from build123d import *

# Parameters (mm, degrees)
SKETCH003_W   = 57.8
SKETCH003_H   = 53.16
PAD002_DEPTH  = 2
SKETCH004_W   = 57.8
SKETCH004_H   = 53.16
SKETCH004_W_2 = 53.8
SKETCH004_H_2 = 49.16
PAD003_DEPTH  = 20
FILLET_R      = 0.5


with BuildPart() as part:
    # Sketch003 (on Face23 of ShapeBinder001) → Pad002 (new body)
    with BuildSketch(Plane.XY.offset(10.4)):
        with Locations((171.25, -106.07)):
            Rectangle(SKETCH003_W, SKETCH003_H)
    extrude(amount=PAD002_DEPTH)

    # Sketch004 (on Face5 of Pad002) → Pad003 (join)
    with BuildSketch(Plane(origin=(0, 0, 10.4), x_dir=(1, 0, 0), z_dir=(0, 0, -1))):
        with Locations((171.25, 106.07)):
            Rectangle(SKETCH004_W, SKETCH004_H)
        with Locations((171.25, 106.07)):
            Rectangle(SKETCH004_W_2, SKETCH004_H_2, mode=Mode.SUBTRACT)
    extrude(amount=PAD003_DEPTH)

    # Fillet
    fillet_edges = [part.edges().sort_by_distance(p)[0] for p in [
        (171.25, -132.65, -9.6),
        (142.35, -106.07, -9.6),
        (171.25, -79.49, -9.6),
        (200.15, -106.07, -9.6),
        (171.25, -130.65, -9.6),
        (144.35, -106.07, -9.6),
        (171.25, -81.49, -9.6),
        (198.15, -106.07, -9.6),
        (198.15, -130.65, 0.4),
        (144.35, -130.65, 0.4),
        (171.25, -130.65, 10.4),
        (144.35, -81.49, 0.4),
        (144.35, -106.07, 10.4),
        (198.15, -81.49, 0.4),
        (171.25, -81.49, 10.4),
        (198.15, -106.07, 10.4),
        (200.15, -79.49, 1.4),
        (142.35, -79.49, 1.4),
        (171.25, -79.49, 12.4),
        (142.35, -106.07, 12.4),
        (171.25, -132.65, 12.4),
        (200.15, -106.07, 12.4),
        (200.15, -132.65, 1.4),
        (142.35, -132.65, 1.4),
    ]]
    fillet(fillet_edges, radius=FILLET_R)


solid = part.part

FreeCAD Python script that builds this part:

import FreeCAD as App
import Part
import Sketcher


def add_polygon(sketch, points):
    """Adds a closed chain of lines whose ends are joined by coincident constraints."""
    first, n = sketch.GeometryCount, len(points)
    for a, b in zip(points, points[1:] + points[:1]):
        sketch.addGeometry(Part.LineSegment(App.Vector(*a, 0), App.Vector(*b, 0)), False)
    for i in range(n):
        sketch.addConstraint(Sketcher.Constraint("Coincident", first + i, 2, first + (i + 1) % n, 1))

doc = App.newDocument("Part")
params = doc.addObject("Spreadsheet::Sheet", "Params")
for row, (alias, value) in enumerate([
    ("sketch1_width", "57.8 mm"),
    ("sketch1_height", "53.16 mm"),
    ("pad1_length", "2 mm"),
    ("sketch2_width", "57.8 mm"),
    ("sketch2_width2", "53.8 mm"),
    ("sketch2_height", "53.16 mm"),
    ("pad2_length", "20 mm"),
    ("fillet_radius", "0.5 mm"),
], start=1):
    params.set(f"A{row}", alias)
    params.set(f"B{row}", "=" + value)
    params.setAlias(f"B{row}", alias)

body = doc.addObject("PartDesign::Body", "Body")

# Sketch on XY plane
sketch1 = body.newObject("Sketcher::SketchObject", "Sketch")
sketch1.AttachmentSupport = (doc.getObject("XY_Plane"), [""])
sketch1.MapMode = "FlatFace"
sketch1.AttachmentOffset = App.Placement(App.Vector(0, 0, 10.4), App.Rotation())
add_polygon(sketch1, [(142, -79), (142, -133), (200, -133), (200, -79)])  # lines 0-3
sketch1.addConstraint(Sketcher.Constraint("Vertical", 0))
sketch1.addConstraint(Sketcher.Constraint("Horizontal", 1))
sketch1.addConstraint(Sketcher.Constraint("Vertical", 2))
sketch1.addConstraint(Sketcher.Constraint("Horizontal", 3))
sketch1.addConstraint(Sketcher.Constraint("DistanceX", 1, 1, 1, 2, 57.8))
sketch1.addConstraint(Sketcher.Constraint("DistanceY", 0, 2, 0, 1, 53.16))
sketch1.addConstraint(Sketcher.Constraint("DistanceX", -1, 1, 0, 2, 142.35))
sketch1.addConstraint(Sketcher.Constraint("DistanceY", 0, 2, -1, 1, 132.65))
sketch1.setExpression("Constraints[8]", "Params.sketch1_width")
sketch1.setExpression("Constraints[9]", "Params.sketch1_height")
pad1 = body.newObject("PartDesign::Pad", "Pad")
pad1.Profile = sketch1
pad1.setExpression("Length", "Params.pad1_length")

# Sketch on XY plane
sketch2 = body.newObject("Sketcher::SketchObject", "Sketch001")
sketch2.AttachmentSupport = (doc.getObject("XY_Plane"), [""])
sketch2.MapMode = "FlatFace"
sketch2.AttachmentOffset = App.Placement(App.Vector(0, 0, 10.4), App.Rotation())
add_polygon(sketch2, [(142, -133), (142, -79), (200, -79), (200, -133)])  # lines 0-3
add_polygon(sketch2, [(198, -81), (144, -81), (144, -131), (198, -131)])  # lines 4-7
sketch2.addConstraint(Sketcher.Constraint("Vertical", 0))
sketch2.addConstraint(Sketcher.Constraint("Horizontal", 1))
sketch2.addConstraint(Sketcher.Constraint("Vertical", 2))
sketch2.addConstraint(Sketcher.Constraint("Horizontal", 3))
sketch2.addConstraint(Sketcher.Constraint("Horizontal", 4))
sketch2.addConstraint(Sketcher.Constraint("Vertical", 5))
sketch2.addConstraint(Sketcher.Constraint("Horizontal", 6))
sketch2.addConstraint(Sketcher.Constraint("Vertical", 7))
sketch2.addConstraint(Sketcher.Constraint("DistanceX", 1, 1, 1, 2, 57.8))
sketch2.addConstraint(Sketcher.Constraint("DistanceX", 4, 2, 4, 1, 53.8))
sketch2.addConstraint(Sketcher.Constraint("DistanceX", 0, 2, 4, 2, 2.0))
sketch2.addConstraint(Sketcher.Constraint("DistanceY", 4, 2, 0, 2, 2.0))
sketch2.addConstraint(Sketcher.Constraint("DistanceY", 3, 2, 5, 2, 2.0))
sketch2.addConstraint(Sketcher.Constraint("DistanceY", 0, 1, 0, 2, 53.16))
sketch2.addConstraint(Sketcher.Constraint("DistanceX", -1, 1, 0, 2, 142.35))
sketch2.addConstraint(Sketcher.Constraint("DistanceY", 0, 2, -1, 1, 79.49))
sketch2.setExpression("Constraints[16]", "Params.sketch2_width")
sketch2.setExpression("Constraints[17]", "Params.sketch2_width2")
sketch2.setExpression("Constraints[21]", "Params.sketch2_height")
pad2 = body.newObject("PartDesign::Pad", "Pad001")
pad2.Profile = sketch2
pad2.setExpression("Length", "Params.pad2_length")
pad2.Reversed = True
doc.recompute()

fillet = body.newObject("PartDesign::Fillet", "Fillet")
fillet.Base = (pad2, ["Edge1"])
fillet.UseAllEdges = True
fillet.setExpression("Radius", "Params.fillet_radius")

doc.recompute()
